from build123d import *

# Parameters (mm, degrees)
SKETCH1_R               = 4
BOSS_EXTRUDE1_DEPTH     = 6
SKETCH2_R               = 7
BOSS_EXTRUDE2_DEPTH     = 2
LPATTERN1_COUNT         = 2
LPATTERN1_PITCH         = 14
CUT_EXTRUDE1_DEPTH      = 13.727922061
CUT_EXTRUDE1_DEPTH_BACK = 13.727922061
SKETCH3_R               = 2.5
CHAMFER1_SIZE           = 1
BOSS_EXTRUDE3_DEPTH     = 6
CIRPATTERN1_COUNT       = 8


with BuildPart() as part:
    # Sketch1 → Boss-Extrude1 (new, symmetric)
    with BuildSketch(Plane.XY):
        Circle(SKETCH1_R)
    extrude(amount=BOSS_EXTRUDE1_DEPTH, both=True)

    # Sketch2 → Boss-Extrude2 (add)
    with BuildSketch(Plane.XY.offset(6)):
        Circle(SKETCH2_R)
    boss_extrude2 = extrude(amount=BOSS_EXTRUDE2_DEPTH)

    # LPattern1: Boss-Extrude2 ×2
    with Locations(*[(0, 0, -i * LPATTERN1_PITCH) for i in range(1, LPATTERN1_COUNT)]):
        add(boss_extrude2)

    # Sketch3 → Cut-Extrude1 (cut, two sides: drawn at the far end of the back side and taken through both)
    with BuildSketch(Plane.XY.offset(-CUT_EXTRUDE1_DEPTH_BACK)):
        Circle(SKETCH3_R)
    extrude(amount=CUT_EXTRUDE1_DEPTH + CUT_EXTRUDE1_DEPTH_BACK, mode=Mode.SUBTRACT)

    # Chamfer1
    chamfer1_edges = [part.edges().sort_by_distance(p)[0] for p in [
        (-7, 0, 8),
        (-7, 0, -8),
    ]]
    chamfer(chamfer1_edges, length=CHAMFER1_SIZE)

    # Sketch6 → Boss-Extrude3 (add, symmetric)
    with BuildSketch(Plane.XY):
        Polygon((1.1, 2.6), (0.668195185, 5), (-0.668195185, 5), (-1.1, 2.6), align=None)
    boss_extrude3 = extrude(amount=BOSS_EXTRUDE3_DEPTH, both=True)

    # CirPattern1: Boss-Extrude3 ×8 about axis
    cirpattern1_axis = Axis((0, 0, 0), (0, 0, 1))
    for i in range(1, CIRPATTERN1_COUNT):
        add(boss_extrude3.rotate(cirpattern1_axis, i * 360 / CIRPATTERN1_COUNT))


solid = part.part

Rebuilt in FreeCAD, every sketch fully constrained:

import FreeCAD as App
import Part
import Sketcher


def edges_at(feature, points):
    """Names of the edges that pass closest to the given points."""
    edges = feature.Shape.Edges
    near = lambda p: min(range(len(edges)), key=lambda i: edges[i].distToShape(Part.Vertex(*p))[0])
    return sorted({f"Edge{near(p) + 1}" for p in points})


def add_polygon(sketch, points):
    """Adds a closed chain of lines whose ends are joined by coincident constraints."""
    first, n = sketch.GeometryCount, len(points)
    for a, b in zip(points, points[1:] + points[:1]):
        sketch.addGeometry(Part.LineSegment(App.Vector(*a, 0), App.Vector(*b, 0)), False)
    for i in range(n):
        sketch.addConstraint(Sketcher.Constraint("Coincident", first + i, 2, first + (i + 1) % n, 1))

doc = App.newDocument("Part")
params = doc.addObject("Spreadsheet::Sheet", "Params")
for row, (alias, value) in enumerate([
    ("sketch1_diameter", "8 mm"),
    ("pad1_length", "12 mm"),
    ("sketch2_diameter", "14 mm"),
    ("pad2_length", "2 mm"),
    ("linearpattern_pitch", "14 mm"),
    ("sketch3_diameter", "5 mm"),
    ("chamfer_size", "1 mm"),
    ("sketch4_width", "2.2 mm"),
    ("pad3_length", "12 mm"),
], start=1):
    params.set(f"A{row}", alias)
    params.set(f"B{row}", "=" + value)
    params.setAlias(f"B{row}", alias)

body = doc.addObject("PartDesign::Body", "Body")

# Sketch on XY plane
sketch1 = body.newObject("Sketcher::SketchObject", "Sketch")
sketch1.AttachmentSupport = (doc.getObject("XY_Plane"), [""])
sketch1.MapMode = "FlatFace"
sketch1.addGeometry(Part.Circle(App.Vector(0, 0, 0), App.Vector(0, 0, 1), 4), False)
sketch1.addConstraint([
    Sketcher.Constraint("Coincident", 0, 3, -1, 1),
    Sketcher.Constraint("Diameter", 0, 8.0),
])
sketch1.setExpression("Constraints[1]", "Params.sketch1_diameter")
pad1 = body.newObject("PartDesign::Pad", "Pad")
pad1.Profile = sketch1
pad1.setExpression("Length", "Params.pad1_length")
pad1.Midplane = True

# Sketch on XY plane
sketch2 = body.newObject("Sketcher::SketchObject", "Sketch001")
sketch2.AttachmentSupport = (doc.getObject("XY_Plane"), [""])
sketch2.MapMode = "FlatFace"
sketch2.AttachmentOffset = App.Placement(App.Vector(0, 0, 6), App.Rotation())
sketch2.addGeometry(Part.Circle(App.Vector(0, 0, 0), App.Vector(0, 0, 1), 7), False)
sketch2.addConstraint([
    Sketcher.Constraint("Coincident", 0, 3, -1, 1),
    Sketcher.Constraint("Diameter", 0, 14.0),
])
sketch2.setExpression("Constraints[1]", "Params.sketch2_diameter")
pad2 = body.newObject("PartDesign::Pad", "Pad001")
pad2.Profile = sketch2
pad2.setExpression("Length", "Params.pad2_length")
doc.recompute()

linearpattern = body.newObject("PartDesign::LinearPattern", "LinearPattern")
linearpattern.Originals = [pad2]
linearpattern.Direction = (doc.getObject("Z_Axis"), [""])
linearpattern.Mode = "offset"
linearpattern.setExpression("Offset", "Params.linearpattern_pitch")
linearpattern.Occurrences = 2
linearpattern.Reversed = True
body.Tip = linearpattern

# Sketch on XY plane
sketch3 = body.newObject("Sketcher::SketchObject", "Sketch002")
sketch3.AttachmentSupport = (doc.getObject("XY_Plane"), [""])
sketch3.MapMode = "FlatFace"
sketch3.addGeometry(Part.Circle(App.Vector(0, 0, 0), App.Vector(0, 0, 1), 2.5), False)
sketch3.addConstraint([
    Sketcher.Constraint("Coincident", 0, 3, -1, 1),
    Sketcher.Constraint("Diameter", 0, 5.0),
])
sketch3.setExpression("Constraints[1]", "Params.sketch3_diameter")
pocket1 = body.newObject("PartDesign::Pocket", "Pocket")
pocket1.Profile = sketch3
pocket1.Type = "ThroughAll"
pocket1.Midplane = True
doc.recompute()

chamfer = body.newObject("PartDesign::Chamfer", "Chamfer")
chamfer.Base = (pocket1, edges_at(pocket1, [(-7, 0, 8), (-7, 0, -8)]))
chamfer.setExpression("Size", "Params.chamfer_size")

# Sketch on XY plane
sketch4 = body.newObject("Sketcher::SketchObject", "Sketch003")
sketch4.AttachmentSupport = (doc.getObject("XY_Plane"), [""])
sketch4.MapMode = "FlatFace"
add_polygon(sketch4, [(1.1, 2.6), (0.7, 5), (-0.7, 5), (-1.1, 2.6)])  # lines 0-3
sketch4.addConstraint([
    Sketcher.Constraint("Horizontal", 1),
    Sketcher.Constraint("Horizontal", 3),
    Sketcher.Constraint("Equal", 0, 2),
    Sketcher.Constraint("DistanceX", 3, 1, 3, 2, 2.2),
    Sketcher.Constraint("DistanceY", -1, 1, 0, 2, 5.0),
    Sketcher.Constraint("DistanceX", 2, 2, -1, 1, 1.1),
    Sketcher.Constraint("DistanceY", -1, 1, 2, 2, 2.6),
    Sketcher.Constraint("DistanceX", 1, 2, 1, 1, 1.33639),
])
sketch4.setExpression("Constraints[7]", "Params.sketch4_width")
pad3 = body.newObject("PartDesign::Pad", "Pad002")
pad3.Profile = sketch4
pad3.setExpression("Length", "Params.pad3_length")
pad3.Midplane = True
doc.recompute()

polarpattern = body.newObject("PartDesign::PolarPattern", "PolarPattern")
polarpattern.Originals = [pad3]
polarpattern.Axis = (doc.getObject("Z_Axis"), [""])
polarpattern.Angle = 360
polarpattern.Occurrences = 8
body.Tip = polarpattern

doc.recompute()
